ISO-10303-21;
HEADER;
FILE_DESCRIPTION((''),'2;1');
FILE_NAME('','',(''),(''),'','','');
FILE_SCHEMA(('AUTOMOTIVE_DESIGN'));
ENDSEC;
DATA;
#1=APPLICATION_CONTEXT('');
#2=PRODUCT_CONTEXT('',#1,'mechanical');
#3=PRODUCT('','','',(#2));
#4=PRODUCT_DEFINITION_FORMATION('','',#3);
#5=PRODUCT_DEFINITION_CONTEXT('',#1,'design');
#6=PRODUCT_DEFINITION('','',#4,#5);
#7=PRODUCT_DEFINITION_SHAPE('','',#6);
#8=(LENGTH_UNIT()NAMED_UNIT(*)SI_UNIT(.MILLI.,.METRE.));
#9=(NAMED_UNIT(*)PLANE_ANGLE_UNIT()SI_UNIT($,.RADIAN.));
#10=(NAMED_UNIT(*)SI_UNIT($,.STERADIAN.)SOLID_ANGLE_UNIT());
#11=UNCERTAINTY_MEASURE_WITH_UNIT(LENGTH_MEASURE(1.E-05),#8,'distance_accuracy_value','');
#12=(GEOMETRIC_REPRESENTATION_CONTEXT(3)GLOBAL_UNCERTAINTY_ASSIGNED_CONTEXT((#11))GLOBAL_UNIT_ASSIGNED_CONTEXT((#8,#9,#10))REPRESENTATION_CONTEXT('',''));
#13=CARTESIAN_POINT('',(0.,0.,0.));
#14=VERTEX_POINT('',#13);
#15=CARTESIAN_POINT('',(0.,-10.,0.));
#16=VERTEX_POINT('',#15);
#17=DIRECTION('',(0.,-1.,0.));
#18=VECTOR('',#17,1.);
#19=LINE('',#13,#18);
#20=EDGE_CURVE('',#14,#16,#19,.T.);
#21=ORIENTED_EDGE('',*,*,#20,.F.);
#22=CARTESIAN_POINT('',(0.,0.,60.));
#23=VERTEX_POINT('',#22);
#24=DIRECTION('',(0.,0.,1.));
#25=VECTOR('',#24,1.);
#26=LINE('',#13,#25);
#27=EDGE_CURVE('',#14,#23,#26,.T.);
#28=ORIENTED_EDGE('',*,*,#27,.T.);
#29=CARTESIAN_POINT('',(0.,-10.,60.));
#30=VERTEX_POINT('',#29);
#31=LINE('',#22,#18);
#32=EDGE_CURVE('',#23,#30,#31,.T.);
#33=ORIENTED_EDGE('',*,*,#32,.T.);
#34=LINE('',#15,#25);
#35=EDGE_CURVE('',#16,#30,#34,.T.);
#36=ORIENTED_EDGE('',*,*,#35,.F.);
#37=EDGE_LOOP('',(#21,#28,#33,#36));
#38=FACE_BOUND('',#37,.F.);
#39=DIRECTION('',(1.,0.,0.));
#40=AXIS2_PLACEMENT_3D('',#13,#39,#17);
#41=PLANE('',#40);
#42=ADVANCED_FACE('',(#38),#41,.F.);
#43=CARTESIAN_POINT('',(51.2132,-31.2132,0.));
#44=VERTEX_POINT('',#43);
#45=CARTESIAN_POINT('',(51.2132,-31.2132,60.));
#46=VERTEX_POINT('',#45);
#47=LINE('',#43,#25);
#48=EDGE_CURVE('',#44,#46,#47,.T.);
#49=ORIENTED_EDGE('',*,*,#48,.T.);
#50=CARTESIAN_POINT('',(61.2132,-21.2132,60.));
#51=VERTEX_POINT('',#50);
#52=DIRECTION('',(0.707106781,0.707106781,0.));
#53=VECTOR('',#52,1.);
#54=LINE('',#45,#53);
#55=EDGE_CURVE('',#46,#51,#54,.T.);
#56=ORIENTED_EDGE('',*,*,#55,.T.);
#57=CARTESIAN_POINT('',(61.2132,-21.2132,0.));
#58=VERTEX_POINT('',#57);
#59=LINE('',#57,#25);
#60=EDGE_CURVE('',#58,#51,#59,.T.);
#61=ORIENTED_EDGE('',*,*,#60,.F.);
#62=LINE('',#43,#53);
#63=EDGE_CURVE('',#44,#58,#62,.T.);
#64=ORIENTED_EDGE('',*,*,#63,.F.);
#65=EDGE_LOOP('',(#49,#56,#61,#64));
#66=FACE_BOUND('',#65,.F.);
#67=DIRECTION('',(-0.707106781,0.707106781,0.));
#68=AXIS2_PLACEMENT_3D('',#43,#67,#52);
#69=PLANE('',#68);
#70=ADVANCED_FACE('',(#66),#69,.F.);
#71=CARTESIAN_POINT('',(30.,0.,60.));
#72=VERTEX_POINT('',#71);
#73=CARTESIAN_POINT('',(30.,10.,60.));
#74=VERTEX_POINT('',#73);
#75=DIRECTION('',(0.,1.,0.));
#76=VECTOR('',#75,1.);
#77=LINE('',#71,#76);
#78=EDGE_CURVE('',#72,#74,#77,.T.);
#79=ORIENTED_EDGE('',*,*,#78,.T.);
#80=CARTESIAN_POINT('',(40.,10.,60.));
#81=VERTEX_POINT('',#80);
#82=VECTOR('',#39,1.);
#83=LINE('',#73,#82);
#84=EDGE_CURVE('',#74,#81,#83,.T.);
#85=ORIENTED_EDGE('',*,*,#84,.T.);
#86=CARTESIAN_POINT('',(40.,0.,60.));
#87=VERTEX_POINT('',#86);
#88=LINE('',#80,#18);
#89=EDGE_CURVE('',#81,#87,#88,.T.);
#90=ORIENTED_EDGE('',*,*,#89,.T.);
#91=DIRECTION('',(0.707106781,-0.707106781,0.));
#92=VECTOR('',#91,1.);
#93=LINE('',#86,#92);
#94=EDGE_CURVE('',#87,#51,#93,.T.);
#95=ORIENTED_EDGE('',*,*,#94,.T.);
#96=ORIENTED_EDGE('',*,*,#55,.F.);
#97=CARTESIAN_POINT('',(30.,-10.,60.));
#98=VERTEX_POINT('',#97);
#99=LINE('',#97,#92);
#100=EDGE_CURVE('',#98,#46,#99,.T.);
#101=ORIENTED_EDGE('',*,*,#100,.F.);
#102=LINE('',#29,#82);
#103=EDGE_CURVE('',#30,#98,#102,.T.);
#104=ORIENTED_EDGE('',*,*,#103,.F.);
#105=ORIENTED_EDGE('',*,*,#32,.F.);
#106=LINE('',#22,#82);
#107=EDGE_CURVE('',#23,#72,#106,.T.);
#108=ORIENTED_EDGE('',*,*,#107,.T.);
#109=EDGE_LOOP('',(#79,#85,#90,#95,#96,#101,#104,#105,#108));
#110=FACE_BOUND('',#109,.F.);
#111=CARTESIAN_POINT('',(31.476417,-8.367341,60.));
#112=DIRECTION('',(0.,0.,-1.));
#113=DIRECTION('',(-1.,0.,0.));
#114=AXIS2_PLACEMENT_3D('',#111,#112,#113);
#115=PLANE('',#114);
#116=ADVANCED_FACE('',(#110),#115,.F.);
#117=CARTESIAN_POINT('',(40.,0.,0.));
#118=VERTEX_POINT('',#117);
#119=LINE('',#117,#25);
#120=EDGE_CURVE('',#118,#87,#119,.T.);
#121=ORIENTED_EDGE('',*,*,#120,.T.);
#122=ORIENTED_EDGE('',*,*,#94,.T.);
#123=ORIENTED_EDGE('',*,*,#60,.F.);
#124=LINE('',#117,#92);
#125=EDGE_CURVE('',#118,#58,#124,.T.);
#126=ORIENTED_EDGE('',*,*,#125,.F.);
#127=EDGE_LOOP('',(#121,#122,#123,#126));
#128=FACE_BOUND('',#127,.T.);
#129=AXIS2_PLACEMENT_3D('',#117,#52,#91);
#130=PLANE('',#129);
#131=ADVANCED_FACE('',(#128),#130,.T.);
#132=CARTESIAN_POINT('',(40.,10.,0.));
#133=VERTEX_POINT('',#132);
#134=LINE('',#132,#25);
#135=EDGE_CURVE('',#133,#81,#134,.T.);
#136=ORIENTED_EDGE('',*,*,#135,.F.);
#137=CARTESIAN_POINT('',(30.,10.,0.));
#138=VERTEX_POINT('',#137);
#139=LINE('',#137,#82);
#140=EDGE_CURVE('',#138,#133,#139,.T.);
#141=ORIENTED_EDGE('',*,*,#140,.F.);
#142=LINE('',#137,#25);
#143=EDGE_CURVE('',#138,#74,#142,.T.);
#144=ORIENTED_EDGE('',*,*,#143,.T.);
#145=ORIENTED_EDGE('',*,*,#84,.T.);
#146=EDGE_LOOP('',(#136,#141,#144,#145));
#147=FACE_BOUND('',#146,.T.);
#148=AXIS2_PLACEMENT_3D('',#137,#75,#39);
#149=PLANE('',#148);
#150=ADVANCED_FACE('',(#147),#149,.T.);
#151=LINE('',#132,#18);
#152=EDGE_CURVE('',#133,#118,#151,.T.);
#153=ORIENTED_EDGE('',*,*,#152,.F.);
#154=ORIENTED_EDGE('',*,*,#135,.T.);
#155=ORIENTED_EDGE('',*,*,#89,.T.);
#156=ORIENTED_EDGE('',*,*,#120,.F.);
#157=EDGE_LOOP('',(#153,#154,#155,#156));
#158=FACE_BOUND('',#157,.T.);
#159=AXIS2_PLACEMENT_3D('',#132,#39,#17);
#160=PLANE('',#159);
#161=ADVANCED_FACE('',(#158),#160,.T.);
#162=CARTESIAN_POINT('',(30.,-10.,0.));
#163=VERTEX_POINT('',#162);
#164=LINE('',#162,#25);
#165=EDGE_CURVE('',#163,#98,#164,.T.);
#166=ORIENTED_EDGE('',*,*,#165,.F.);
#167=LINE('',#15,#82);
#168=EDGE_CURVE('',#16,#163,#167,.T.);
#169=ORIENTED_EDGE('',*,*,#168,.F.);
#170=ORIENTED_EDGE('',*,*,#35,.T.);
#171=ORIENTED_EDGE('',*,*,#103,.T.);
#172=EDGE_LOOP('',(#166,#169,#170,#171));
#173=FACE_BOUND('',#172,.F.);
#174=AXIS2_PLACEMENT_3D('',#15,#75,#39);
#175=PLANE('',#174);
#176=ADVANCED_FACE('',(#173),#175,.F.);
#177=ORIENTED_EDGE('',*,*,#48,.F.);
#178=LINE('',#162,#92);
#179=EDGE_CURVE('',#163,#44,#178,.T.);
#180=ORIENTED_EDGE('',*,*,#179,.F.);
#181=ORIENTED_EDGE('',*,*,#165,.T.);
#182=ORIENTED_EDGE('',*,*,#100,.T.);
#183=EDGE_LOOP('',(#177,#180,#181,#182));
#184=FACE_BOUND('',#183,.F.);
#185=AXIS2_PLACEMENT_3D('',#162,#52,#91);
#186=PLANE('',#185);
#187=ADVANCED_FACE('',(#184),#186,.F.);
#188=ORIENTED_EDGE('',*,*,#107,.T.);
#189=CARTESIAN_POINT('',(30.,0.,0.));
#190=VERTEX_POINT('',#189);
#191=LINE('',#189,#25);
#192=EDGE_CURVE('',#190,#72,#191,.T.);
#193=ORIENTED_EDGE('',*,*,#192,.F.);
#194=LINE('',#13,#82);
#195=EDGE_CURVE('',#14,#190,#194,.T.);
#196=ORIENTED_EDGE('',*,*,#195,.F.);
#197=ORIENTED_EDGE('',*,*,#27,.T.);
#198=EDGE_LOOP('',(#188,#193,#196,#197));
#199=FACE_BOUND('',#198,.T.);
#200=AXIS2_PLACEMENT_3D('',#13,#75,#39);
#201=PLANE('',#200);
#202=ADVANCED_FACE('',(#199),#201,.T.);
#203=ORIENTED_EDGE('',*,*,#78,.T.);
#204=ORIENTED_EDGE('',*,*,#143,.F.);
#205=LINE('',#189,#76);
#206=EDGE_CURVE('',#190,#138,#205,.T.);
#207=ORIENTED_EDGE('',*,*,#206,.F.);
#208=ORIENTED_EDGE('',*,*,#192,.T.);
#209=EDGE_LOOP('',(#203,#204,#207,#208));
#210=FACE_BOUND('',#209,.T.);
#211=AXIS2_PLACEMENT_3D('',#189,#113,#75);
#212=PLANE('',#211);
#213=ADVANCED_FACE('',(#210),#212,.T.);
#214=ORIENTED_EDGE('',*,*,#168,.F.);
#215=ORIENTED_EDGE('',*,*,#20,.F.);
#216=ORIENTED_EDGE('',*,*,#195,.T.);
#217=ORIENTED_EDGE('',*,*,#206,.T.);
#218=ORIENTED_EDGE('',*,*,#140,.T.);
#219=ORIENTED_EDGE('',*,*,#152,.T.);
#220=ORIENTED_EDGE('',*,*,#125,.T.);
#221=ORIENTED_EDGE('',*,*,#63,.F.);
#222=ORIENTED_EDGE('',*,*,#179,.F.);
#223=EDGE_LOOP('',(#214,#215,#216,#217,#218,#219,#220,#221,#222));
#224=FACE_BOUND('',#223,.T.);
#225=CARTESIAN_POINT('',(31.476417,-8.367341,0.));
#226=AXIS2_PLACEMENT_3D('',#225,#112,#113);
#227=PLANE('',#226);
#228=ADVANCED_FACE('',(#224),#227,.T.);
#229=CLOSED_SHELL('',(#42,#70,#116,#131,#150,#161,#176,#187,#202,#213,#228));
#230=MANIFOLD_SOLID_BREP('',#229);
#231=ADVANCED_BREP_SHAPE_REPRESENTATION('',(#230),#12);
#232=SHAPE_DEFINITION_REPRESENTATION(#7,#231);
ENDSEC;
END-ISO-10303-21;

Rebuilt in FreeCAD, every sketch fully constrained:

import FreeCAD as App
import Part
import Sketcher
from FreeCAD import Vector
Q = App.Units.Quantity


def add_polygon(sketch, points):
    """Adds a closed chain of lines whose ends are joined by coincident constraints."""
    first, n = sketch.GeometryCount, len(points)
    for a, b in zip(points, points[1:] + points[:1]):
        sketch.addGeometry(Part.LineSegment(App.Vector(*a, 0), App.Vector(*b, 0)), False)
    for i in range(n):
        sketch.addConstraint(Sketcher.Constraint("Coincident", first + i, 2, first + (i + 1) % n, 1))

doc = App.newDocument("Part")
params = doc.addObject("Spreadsheet::Sheet", "Params")
for row, (alias, value) in enumerate([
    ("sketch1_width", "30 mm"),
    ("sketch1_width2", "10 mm"),
    ("sketch1_length", "30 mm"),
    ("pad1_length", "60 mm"),
], start=1):
    params.set(f"A{row}", alias)
    params.set(f"B{row}", "=" + value)
    params.setAlias(f"B{row}", alias)

body = doc.addObject("PartDesign::Body", "Body")

# Sketch on XY plane
sketch1 = body.newObject("Sketcher::SketchObject", "Sketch")
sketch1.AttachmentSupport = (doc.getObject("XY_Plane"), [""])
sketch1.MapMode = "FlatFace"
add_polygon(sketch1, [(30, 0), (0, 0), (0, -10), (30, -10), (51, -31), (61, -21), (40, 0), (40, 10), (30, 10)])  # lines 0-8
sketch1.addConstraint(Sketcher.Constraint("Horizontal", 0))
sketch1.addConstraint(Sketcher.Constraint("Vertical", 1))
sketch1.addConstraint(Sketcher.Constraint("Horizontal", 2))
sketch1.addConstraint(Sketcher.Constraint("Vertical", 6))
sketch1.addConstraint(Sketcher.Constraint("Horizontal", 7))
sketch1.addConstraint(Sketcher.Constraint("Vertical", 8))
sketch1.addConstraint(Sketcher.Constraint("Coincident", 0, 2, -1, 1))
sketch1.addConstraint(Sketcher.Constraint("Symmetric", 2, 2, 7, 2, -1))
sketch1.addConstraint(Sketcher.Constraint("PointOnObject", 5, 2, -1))
sketch1.addConstraint(Sketcher.Constraint("Perpendicular", 3, 4))
sketch1.addConstraint(Sketcher.Constraint("Perpendicular", 4, 5))
sketch1.addConstraint(Sketcher.Constraint("Equal", 7, 1))
sketch1.addConstraint(Sketcher.Constraint("Equal", 3, 5))
sketch1.addConstraint(Sketcher.Constraint("DistanceX", 0, 2, 0, 1, Q("30 mm")))
sketch1.addConstraint(Sketcher.Constraint("DistanceX", 7, 2, 7, 1, Q("10 mm")))
sketch1.addConstraint(Sketcher.Constraint("Distance", 3, Q("30 mm")))
sketch1.setExpression("Constraints[22]", "Params.sketch1_width")
sketch1.setExpression("Constraints[23]", "Params.sketch1_width2")
sketch1.setExpression("Constraints[24]", "Params.sketch1_length")
pad1 = body.newObject("PartDesign::Pad", "Pad")
pad1.Profile = sketch1
pad1.setExpression("Length", "Params.pad1_length")

doc.recompute()
